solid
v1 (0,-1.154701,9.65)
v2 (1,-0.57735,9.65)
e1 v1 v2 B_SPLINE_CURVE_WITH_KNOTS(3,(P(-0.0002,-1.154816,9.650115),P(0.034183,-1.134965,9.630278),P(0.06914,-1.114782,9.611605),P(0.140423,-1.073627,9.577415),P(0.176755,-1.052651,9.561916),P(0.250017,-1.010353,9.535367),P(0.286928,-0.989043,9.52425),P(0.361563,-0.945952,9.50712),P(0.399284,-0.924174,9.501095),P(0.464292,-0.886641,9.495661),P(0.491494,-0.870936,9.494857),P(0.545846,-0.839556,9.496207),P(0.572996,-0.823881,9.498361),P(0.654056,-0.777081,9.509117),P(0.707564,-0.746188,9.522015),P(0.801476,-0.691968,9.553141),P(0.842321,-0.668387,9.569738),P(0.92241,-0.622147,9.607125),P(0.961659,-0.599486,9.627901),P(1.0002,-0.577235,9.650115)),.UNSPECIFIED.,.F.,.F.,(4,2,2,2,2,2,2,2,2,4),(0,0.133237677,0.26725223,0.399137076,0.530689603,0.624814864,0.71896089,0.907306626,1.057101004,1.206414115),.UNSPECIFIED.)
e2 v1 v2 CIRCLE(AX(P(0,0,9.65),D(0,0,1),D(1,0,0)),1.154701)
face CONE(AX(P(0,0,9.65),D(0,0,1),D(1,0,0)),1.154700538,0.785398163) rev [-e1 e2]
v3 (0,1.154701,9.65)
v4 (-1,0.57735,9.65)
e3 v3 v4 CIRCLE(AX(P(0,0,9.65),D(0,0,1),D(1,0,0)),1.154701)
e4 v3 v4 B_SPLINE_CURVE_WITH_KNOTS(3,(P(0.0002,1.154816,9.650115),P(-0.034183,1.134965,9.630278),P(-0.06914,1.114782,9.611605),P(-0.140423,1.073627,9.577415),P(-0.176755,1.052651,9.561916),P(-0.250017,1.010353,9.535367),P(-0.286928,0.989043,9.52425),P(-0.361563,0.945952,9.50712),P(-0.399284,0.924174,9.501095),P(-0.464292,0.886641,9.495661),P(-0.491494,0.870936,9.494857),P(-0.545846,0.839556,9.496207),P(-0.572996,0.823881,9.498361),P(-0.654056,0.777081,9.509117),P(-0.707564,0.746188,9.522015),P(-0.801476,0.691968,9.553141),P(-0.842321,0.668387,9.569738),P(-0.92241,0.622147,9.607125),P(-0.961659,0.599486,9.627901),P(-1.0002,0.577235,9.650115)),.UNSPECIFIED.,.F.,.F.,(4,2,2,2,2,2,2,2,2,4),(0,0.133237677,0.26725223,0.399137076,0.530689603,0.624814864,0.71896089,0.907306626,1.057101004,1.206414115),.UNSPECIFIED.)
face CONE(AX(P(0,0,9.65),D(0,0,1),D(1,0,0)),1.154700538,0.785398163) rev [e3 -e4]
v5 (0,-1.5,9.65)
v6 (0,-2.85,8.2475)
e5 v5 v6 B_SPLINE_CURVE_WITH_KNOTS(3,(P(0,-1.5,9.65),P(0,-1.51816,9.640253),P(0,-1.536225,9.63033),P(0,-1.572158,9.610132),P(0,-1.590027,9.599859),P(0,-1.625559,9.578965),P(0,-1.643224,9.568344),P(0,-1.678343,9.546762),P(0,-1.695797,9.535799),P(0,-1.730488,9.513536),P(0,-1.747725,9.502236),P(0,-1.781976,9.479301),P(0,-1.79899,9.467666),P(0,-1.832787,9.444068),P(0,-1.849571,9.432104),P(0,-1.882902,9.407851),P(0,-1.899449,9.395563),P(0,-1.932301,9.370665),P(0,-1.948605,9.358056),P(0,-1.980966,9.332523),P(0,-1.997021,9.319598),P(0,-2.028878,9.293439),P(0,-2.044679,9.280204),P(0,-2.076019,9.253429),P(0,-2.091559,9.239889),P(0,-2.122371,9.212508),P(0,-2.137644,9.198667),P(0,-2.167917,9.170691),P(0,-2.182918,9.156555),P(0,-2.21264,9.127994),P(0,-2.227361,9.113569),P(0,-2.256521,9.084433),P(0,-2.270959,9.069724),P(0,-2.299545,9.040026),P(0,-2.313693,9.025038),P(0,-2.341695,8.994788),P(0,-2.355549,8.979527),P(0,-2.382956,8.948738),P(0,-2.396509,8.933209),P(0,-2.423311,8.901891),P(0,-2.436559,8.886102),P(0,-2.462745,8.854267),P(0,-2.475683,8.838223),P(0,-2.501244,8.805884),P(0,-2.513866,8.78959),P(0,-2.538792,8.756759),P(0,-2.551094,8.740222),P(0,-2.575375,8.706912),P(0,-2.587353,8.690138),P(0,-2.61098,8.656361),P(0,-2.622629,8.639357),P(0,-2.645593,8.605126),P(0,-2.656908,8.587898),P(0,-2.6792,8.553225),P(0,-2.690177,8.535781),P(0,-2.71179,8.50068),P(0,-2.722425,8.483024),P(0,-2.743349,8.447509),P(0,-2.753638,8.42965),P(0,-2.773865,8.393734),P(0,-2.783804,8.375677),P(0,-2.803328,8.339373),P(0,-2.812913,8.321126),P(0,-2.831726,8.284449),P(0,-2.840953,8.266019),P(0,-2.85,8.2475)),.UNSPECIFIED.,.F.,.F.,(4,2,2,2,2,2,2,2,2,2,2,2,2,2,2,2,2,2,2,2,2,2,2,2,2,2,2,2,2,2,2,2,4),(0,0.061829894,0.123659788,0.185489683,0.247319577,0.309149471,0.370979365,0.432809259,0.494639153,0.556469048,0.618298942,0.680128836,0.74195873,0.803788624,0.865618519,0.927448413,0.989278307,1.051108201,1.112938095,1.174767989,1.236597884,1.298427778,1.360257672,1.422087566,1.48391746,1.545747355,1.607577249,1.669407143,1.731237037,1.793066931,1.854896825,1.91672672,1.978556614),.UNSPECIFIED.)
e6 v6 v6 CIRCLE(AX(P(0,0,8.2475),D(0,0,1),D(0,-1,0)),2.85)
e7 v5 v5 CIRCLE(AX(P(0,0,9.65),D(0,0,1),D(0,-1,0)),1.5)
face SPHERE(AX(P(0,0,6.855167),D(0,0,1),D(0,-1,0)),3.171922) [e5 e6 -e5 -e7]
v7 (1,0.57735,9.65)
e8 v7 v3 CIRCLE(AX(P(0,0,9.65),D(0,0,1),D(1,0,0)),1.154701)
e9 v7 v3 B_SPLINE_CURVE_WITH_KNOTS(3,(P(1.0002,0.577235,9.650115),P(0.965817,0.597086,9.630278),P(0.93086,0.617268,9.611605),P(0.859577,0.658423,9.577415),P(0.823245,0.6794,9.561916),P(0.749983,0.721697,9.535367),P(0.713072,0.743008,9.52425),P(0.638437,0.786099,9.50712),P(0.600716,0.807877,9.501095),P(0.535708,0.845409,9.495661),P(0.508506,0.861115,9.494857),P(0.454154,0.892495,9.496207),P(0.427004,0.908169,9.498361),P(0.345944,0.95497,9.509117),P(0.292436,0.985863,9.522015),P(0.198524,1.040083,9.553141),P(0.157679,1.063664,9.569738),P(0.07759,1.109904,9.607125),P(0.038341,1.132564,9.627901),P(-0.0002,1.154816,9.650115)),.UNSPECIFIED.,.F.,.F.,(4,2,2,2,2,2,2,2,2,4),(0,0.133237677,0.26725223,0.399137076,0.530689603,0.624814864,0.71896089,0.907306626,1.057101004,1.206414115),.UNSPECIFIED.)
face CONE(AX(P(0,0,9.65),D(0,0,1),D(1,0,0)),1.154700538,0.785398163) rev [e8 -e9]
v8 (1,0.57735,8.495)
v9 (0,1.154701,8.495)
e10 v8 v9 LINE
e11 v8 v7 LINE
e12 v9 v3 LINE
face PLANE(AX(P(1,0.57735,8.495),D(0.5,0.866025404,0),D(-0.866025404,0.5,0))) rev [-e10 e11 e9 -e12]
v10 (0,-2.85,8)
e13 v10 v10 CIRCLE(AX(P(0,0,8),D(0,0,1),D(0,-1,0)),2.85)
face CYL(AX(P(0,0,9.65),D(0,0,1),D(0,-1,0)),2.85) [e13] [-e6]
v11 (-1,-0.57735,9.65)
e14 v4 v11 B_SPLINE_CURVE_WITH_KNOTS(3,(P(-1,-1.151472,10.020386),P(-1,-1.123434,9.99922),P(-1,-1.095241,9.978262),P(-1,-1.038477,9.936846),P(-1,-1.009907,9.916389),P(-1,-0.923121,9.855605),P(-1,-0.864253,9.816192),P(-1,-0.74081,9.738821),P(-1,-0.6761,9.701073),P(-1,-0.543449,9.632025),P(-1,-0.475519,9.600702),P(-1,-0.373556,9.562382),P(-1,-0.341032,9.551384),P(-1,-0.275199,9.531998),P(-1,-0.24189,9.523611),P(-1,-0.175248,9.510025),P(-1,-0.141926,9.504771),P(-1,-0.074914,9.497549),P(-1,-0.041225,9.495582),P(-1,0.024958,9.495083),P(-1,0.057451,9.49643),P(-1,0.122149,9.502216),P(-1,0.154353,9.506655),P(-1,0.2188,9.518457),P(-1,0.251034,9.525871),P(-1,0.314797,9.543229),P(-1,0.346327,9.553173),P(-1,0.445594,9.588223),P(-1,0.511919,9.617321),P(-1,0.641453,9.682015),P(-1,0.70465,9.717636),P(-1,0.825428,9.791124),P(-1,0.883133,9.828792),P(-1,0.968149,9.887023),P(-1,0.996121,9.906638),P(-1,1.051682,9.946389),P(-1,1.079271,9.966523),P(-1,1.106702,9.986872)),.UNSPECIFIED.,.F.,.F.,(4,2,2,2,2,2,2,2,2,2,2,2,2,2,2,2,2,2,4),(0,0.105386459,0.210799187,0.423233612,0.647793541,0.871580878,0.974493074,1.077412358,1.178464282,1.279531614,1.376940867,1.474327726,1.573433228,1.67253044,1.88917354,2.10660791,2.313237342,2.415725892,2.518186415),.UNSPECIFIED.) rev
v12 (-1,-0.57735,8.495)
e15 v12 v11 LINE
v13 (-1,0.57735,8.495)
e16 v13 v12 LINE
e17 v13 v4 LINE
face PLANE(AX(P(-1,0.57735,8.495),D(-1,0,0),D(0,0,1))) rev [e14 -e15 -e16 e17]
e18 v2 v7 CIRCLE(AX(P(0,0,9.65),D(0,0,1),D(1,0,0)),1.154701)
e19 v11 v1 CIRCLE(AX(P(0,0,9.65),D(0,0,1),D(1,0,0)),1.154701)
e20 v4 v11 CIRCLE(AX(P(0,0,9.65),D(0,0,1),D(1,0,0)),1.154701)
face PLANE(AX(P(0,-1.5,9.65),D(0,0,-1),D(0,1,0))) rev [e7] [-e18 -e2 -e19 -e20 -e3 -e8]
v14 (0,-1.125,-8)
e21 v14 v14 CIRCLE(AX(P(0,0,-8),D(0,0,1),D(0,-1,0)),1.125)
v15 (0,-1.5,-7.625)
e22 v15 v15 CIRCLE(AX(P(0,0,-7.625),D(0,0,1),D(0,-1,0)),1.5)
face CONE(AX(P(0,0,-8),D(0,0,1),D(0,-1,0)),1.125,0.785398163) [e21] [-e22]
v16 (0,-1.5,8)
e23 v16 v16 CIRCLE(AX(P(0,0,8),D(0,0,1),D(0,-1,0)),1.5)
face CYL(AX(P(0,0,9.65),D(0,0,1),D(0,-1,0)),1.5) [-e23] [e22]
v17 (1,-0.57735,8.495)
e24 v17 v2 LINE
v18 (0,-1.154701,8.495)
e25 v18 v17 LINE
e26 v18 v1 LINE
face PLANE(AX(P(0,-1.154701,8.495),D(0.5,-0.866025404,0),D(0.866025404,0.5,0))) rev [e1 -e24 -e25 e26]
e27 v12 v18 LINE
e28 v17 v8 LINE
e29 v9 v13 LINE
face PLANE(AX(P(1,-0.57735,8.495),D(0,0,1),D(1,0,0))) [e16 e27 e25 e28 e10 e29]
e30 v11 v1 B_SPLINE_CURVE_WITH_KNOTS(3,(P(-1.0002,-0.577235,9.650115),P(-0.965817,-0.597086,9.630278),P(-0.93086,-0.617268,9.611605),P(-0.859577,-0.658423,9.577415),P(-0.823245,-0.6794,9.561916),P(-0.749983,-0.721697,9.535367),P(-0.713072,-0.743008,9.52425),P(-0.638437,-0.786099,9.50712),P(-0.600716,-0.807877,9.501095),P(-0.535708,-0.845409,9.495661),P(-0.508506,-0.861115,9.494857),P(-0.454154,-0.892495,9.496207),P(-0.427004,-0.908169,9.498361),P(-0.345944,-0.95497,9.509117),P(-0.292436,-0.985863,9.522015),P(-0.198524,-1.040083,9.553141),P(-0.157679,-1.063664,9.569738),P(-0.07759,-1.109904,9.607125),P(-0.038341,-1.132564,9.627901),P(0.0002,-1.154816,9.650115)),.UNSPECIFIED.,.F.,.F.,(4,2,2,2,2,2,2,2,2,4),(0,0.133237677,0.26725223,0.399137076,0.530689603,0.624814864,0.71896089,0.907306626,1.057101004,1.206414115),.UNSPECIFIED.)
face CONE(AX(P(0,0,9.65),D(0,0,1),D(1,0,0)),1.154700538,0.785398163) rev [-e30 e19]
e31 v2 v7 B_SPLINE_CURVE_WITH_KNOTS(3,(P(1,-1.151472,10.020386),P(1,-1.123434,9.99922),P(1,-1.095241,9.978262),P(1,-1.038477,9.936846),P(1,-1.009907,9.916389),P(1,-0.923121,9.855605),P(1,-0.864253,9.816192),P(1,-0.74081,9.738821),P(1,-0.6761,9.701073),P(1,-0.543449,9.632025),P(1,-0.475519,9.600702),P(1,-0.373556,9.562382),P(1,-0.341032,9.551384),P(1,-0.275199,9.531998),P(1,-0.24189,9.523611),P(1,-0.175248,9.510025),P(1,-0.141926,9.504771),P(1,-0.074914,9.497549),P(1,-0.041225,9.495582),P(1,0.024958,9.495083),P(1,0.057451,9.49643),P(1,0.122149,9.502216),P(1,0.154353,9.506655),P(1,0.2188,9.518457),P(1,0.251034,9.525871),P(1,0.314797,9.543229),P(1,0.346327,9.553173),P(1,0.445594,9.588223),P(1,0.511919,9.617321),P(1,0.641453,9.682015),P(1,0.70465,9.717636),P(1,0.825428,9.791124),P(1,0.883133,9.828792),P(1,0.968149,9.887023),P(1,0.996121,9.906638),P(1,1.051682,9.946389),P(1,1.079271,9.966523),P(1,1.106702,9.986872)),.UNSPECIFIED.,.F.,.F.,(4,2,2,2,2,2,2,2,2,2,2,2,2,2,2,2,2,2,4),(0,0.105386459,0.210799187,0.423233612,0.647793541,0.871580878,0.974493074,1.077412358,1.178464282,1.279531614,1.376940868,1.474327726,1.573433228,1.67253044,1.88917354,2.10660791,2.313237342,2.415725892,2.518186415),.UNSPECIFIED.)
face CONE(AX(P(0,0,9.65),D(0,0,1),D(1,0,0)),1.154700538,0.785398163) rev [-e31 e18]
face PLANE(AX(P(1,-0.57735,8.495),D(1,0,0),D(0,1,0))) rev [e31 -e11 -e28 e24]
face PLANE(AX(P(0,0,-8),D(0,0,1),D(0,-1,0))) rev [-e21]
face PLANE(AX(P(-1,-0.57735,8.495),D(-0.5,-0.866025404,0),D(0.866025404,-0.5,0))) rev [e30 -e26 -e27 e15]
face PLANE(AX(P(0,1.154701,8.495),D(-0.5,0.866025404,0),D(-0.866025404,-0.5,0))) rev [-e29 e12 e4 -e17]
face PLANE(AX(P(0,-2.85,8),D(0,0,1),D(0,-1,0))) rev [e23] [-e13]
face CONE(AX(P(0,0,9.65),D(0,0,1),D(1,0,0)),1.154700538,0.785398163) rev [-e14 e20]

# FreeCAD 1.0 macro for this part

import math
import FreeCAD as App
import Part
import Sketcher
from FreeCAD import Vector
Q = App.Units.Quantity


def add_polygon(sketch, points):
    """Adds a closed chain of lines whose ends are joined by coincident constraints."""
    first, n = sketch.GeometryCount, len(points)
    for a, b in zip(points, points[1:] + points[:1]):
        sketch.addGeometry(Part.LineSegment(App.Vector(*a, 0), App.Vector(*b, 0)), False)
    for i in range(n):
        sketch.addConstraint(Sketcher.Constraint("Coincident", first + i, 2, first + (i + 1) % n, 1))

doc = App.newDocument("Part")
body = doc.addObject("PartDesign::Body", "Body")

# Sketch on YZ plane
sketch1 = body.newObject("Sketcher::SketchObject", "Sketch")
sketch1.AttachmentSupport = (doc.getObject("YZ_Plane"), [""])
sketch1.MapMode = "FlatFace"
add_polygon(sketch1, [(1.125, -8), (1.5, -7.625), (1.5, 8), (0, 8), (0, -8)])  # lines 0-4
sketch1.addConstraint(Sketcher.Constraint("Vertical", 1))
sketch1.addConstraint(Sketcher.Constraint("Horizontal", 2))
sketch1.addConstraint(Sketcher.Constraint("Vertical", 3))
sketch1.addConstraint(Sketcher.Constraint("Horizontal", 4))
sketch1.addConstraint(Sketcher.Constraint("Symmetric", 2, 2, 3, 2, -1, 1))
sketch1.addConstraint(Sketcher.Constraint("DistanceY", 3, 2, 3, 1, Q("16 mm")))
sketch1.addConstraint(Sketcher.Constraint("Angle", 0, Q("45 deg")))
sketch1.addConstraint(Sketcher.Constraint("DistanceX", 2, 2, 2, 1, Q("1.5 mm")))
sketch1.addConstraint(Sketcher.Constraint("DistanceX", 4, 1, 4, 2, Q("1.125 mm")))
revolution = body.newObject("PartDesign::Revolution", "Revolution")
revolution.Profile = sketch1
revolution.ReferenceAxis = (sketch1, ["V_Axis"])
revolution.Angle = 360

# Sketch on YZ plane
sketch2 = body.newObject("Sketcher::SketchObject", "Sketch001")
sketch2.AttachmentSupport = (doc.getObject("YZ_Plane"), [""])
sketch2.MapMode = "FlatFace"
sketch2.addGeometry(Part.LineSegment(Vector(2.85, 8, 0), Vector(2.85, 8.2475, 0)), False)
sketch2.addGeometry(Part.ArcOfCircle(Part.Circle(Vector(0, 6.855167, 0), Vector(0, 0, 1), 3.171922), math.radians(26.03726), math.radians(61.777335)), False)
sketch2.addGeometry(Part.LineSegment(Vector(1.5, 9.65, 0), Vector(0, 9.65, 0)), False)
sketch2.addGeometry(Part.LineSegment(Vector(0, 9.65, 0), Vector(0, 8, 0)), False)
sketch2.addGeometry(Part.LineSegment(Vector(0, 8, 0), Vector(2.85, 8, 0)), False)
sketch2.addConstraint(Sketcher.Constraint("Coincident", 0, 2, 1, 1))
sketch2.addConstraint(Sketcher.Constraint("Coincident", 1, 2, 2, 1))
sketch2.addConstraint(Sketcher.Constraint("Coincident", 2, 2, 3, 1))
sketch2.addConstraint(Sketcher.Constraint("Coincident", 3, 2, 4, 1))
sketch2.addConstraint(Sketcher.Constraint("Coincident", 4, 2, 0, 1))
sketch2.addConstraint(Sketcher.Constraint("Vertical", 0))
sketch2.addConstraint(Sketcher.Constraint("Horizontal", 2))
sketch2.addConstraint(Sketcher.Constraint("Vertical", 3))
sketch2.addConstraint(Sketcher.Constraint("Horizontal", 4))
sketch2.addConstraint(Sketcher.Constraint("PointOnObject", 1, 3, -2))
sketch2.addConstraint(Sketcher.Constraint("PointOnObject", 2, 2, -2))
sketch2.addConstraint(Sketcher.Constraint("DistanceX", 2, 2, 2, 1, Q("1.5 mm")))
sketch2.addConstraint(Sketcher.Constraint("DistanceY", -1, 1, 3, 2, Q("8 mm")))
sketch2.addConstraint(Sketcher.Constraint("DistanceX", 4, 1, 4, 2, Q("2.85 mm")))
sketch2.addConstraint(Sketcher.Constraint("DistanceY", 3, 2, 3, 1, Q("1.65 mm")))
sketch2.addConstraint(Sketcher.Constraint("DistanceY", 0, 1, 0, 2, Q("0.2475 mm")))
revolution2 = body.newObject("PartDesign::Revolution", "Revolution001")
revolution2.Profile = sketch2
revolution2.ReferenceAxis = (sketch2, ["V_Axis"])
revolution2.Angle = 360

# Sketch on XY plane
sketch3 = body.newObject("Sketcher::SketchObject", "Sketch002")
sketch3.AttachmentSupport = (doc.getObject("XY_Plane"), [""])
sketch3.MapMode = "FlatFace"
sketch3.AttachmentOffset = App.Placement(Vector(0, 0, 9.65), App.Rotation())
add_polygon(sketch3, [(1, -0.57735), (1, 0.57735), (0, 1.154701), (-1, 0.57735), (-1, -0.57735), (0, -1.154701)])  # lines 0-5
sketch3.addConstraint(Sketcher.Constraint("Vertical", 0))
sketch3.addConstraint(Sketcher.Constraint("Vertical", 3))
sketch3.addConstraint(Sketcher.Constraint("Symmetric", 0, 2, 3, 2, -1, 1))
sketch3.addConstraint(Sketcher.Constraint("Symmetric", 1, 2, 4, 2, -1, 1))
sketch3.addConstraint(Sketcher.Constraint("PointOnObject", 1, 2, -2))
sketch3.addConstraint(Sketcher.Constraint("Parallel", 2, 5))
sketch3.addConstraint(Sketcher.Constraint("Horizontal", 0, 2, 2, 2))
sketch3.addConstraint(Sketcher.Constraint("Angle", 1, Q("150 deg")))
sketch3.addConstraint(Sketcher.Constraint("DistanceX", -1, 1, 0, 2, Q("1 mm")))
sketch3.addConstraint(Sketcher.Constraint("DistanceY", 0, 1, 0, 2, Q("1.154701 mm")))
pocket1 = body.newObject("PartDesign::Pocket", "Pocket")
pocket1.Profile = sketch3
pocket1.Length = 1.155

# Sketch on YZ plane
sketch4 = body.newObject("Sketcher::SketchObject", "Sketch003")
sketch4.AttachmentSupport = (doc.getObject("YZ_Plane"), [""])
sketch4.MapMode = "FlatFace"
add_polygon(sketch4, [(0, 9.65), (-1.154701, 9.65), (0, 8.495299)])  # lines 0-2
sketch4.addConstraint(Sketcher.Constraint("Horizontal", 0))
sketch4.addConstraint(Sketcher.Constraint("Vertical", 2))
sketch4.addConstraint(Sketcher.Constraint("PointOnObject", 1, 2, -2))
sketch4.addConstraint(Sketcher.Constraint("Equal", 0, 2))
sketch4.addConstraint(Sketcher.Constraint("DistanceY", -1, 1, 0, 2, Q("9.65 mm")))
sketch4.addConstraint(Sketcher.Constraint("DistanceX", 0, 2, 0, 1, Q("1.154701 mm")))
groove = body.newObject("PartDesign::Groove", "Groove")
groove.Profile = sketch4
groove.ReferenceAxis = (sketch4, ["V_Axis"])
groove.Angle = 360

doc.recompute()
